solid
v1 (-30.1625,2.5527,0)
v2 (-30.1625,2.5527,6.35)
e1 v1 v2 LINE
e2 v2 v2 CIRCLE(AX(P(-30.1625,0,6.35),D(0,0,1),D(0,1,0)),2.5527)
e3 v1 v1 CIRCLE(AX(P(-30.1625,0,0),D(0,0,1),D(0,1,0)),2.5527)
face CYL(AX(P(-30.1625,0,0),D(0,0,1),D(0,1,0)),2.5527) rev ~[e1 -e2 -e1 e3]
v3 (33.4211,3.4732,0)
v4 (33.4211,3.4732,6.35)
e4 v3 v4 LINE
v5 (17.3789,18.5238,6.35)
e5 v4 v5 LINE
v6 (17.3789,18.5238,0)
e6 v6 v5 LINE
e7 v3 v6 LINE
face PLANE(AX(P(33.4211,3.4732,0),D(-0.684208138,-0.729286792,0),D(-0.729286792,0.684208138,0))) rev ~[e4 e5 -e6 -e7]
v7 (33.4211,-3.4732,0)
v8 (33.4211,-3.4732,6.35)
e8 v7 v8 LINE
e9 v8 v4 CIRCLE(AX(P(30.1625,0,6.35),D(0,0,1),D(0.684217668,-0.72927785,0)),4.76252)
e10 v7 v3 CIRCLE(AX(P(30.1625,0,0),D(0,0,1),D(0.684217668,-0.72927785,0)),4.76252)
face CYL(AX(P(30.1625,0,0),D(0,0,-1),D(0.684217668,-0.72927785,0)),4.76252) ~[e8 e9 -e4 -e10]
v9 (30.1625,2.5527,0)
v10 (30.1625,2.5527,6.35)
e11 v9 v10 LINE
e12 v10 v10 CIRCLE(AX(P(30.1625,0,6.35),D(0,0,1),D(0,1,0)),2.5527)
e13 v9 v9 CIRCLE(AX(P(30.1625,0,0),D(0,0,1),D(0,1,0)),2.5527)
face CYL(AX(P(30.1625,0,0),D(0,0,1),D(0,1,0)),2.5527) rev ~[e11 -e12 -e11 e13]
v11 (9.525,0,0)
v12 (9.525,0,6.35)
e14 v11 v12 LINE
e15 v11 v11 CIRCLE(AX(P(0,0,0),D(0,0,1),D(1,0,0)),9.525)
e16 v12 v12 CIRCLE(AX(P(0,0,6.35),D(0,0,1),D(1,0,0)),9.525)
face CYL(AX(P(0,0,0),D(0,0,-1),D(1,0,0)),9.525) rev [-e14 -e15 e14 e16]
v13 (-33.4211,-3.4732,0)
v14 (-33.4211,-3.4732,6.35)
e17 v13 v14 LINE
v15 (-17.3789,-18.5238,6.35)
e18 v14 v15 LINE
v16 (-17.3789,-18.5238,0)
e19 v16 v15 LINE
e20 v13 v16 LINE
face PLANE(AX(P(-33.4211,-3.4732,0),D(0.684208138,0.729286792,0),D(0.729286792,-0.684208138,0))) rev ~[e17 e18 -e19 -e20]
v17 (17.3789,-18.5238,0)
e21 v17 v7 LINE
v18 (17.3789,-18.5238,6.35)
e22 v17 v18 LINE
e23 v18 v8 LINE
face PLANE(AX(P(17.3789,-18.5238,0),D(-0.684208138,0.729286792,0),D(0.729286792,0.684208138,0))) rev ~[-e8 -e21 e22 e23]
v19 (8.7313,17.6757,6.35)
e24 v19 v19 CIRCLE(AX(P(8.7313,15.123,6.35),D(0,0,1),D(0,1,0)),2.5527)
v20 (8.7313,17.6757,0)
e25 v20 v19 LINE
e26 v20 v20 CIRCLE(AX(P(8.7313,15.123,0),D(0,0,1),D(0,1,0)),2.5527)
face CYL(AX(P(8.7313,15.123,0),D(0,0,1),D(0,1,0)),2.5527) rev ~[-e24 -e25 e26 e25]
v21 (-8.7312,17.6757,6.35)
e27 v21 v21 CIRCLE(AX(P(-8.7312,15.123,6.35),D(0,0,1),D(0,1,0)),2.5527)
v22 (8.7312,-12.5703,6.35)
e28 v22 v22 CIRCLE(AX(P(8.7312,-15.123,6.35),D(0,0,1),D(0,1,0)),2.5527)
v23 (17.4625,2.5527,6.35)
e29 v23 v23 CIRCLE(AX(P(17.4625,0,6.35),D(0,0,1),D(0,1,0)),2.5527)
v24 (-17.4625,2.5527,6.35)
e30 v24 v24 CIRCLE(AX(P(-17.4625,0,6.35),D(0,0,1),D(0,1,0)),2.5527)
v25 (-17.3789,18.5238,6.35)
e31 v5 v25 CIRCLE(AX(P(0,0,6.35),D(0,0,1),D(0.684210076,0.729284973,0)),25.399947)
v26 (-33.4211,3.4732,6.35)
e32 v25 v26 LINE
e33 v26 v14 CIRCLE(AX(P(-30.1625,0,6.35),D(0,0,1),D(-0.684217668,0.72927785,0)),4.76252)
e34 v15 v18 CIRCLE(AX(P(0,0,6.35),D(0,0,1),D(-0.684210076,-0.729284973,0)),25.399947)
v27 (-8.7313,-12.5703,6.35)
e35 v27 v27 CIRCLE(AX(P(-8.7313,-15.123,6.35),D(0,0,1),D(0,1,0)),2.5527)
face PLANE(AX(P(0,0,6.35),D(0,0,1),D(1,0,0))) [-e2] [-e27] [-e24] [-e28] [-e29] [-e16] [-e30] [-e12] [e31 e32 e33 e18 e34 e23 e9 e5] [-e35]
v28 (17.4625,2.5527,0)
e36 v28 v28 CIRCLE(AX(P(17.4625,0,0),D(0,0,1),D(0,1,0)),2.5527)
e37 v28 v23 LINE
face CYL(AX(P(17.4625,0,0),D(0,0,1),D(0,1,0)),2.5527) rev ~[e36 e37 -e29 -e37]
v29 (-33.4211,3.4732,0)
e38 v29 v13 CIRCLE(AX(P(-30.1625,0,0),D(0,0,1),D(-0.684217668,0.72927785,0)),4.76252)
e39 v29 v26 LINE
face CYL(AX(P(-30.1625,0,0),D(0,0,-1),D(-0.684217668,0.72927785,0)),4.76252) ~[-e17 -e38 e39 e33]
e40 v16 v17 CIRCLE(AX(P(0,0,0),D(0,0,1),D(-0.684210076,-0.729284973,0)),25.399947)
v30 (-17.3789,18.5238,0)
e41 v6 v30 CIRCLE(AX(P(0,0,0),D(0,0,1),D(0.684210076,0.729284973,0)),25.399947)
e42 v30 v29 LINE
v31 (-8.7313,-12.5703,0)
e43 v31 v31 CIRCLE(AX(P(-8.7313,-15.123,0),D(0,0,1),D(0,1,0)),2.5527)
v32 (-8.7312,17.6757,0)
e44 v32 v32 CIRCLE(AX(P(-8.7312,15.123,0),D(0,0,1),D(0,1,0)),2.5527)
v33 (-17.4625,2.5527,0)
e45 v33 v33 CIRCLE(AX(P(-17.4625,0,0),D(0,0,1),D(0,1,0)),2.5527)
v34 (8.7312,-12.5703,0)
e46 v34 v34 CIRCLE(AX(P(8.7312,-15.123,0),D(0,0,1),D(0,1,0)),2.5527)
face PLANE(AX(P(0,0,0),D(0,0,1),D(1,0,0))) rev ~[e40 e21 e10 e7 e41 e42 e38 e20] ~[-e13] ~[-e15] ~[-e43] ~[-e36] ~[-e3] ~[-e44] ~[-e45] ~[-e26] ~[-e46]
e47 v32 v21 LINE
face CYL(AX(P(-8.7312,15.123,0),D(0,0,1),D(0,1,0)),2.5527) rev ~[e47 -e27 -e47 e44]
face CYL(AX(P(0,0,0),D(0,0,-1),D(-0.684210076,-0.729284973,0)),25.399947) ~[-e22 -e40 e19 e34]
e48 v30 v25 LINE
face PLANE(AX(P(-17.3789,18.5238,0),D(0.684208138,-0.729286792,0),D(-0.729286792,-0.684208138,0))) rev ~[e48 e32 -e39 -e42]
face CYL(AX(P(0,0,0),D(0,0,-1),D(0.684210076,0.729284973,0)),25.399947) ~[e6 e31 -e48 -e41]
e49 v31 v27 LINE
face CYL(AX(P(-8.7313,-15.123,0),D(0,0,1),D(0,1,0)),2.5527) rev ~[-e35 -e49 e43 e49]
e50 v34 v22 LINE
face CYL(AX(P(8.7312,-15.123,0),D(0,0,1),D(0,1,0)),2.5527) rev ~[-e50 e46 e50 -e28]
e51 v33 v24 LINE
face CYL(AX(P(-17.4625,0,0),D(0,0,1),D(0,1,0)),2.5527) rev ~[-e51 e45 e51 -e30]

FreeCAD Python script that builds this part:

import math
import FreeCAD as App
import Part
import Sketcher
Q = App.Units.Quantity

doc = App.newDocument("Part")
params = doc.addObject("Spreadsheet::Sheet", "Params")
for row, (alias, value) in enumerate([
    ("sketch1_radius", "1 in"),
    ("sketch1_diameter", "0.75 in"),
    ("sketch1_radius2", "0.1875 in"),
    ("pad1_length", "0.25 in"),
    ("sketch2_diameter", "0.201 in"),
    ("hole_diameter", "0.201 in"),
], start=1):
    params.set(f"A{row}", alias)
    params.set(f"B{row}", "=" + value)
    params.setAlias(f"B{row}", alias)

body = doc.addObject("PartDesign::Body", "Body")

# Sketch on XY plane
sketch1 = body.newObject("Sketcher::SketchObject", "Sketch")
sketch1.AttachmentSupport = (doc.getObject("XY_Plane"), [""])
sketch1.MapMode = "FlatFace"
sketch1.addGeometry([
    Part.ArcOfCircle(Part.Circle(App.Vector(0, 0, 0), App.Vector(0, 0, 1), 25.399947), math.radians(46.826484), math.radians(133.173516)),  # 0
    Part.LineSegment(App.Vector(-17.3789, 18.5238, 0), App.Vector(-33.4211, 3.4732, 0)),  # 1
    Part.ArcOfCircle(Part.Circle(App.Vector(-30.1625, 0, 0), App.Vector(0, 0, 1), 4.76252), math.radians(133.174112), math.radians(226.825888)),  # 2
    Part.LineSegment(App.Vector(-33.4211, -3.4732, 0), App.Vector(-17.3789, -18.5238, 0)),  # 3
    Part.ArcOfCircle(Part.Circle(App.Vector(0, 0, 0), App.Vector(0, 0, 1), 25.399947), math.radians(-133.173516), math.radians(-46.826484)),  # 4
    Part.LineSegment(App.Vector(17.3789, -18.5238, 0), App.Vector(33.4211, -3.4732, 0)),  # 5
    Part.ArcOfCircle(Part.Circle(App.Vector(30.1625, 0, 0), App.Vector(0, 0, 1), 4.76252), math.radians(-46.825888), math.radians(46.825888)),  # 6
    Part.LineSegment(App.Vector(33.4211, 3.4732, 0), App.Vector(17.3789, 18.5238, 0)),  # 7
    Part.Circle(App.Vector(0, 0, 0), App.Vector(0, 0, 1), 9.525),  # 8
], False)
sketch1.addConstraint([
    Sketcher.Constraint("Tangent", 0, 2, 1, 1),
    Sketcher.Constraint("Tangent", 1, 2, 2, 1),
    Sketcher.Constraint("Tangent", 2, 2, 3, 1),
    Sketcher.Constraint("Tangent", 3, 2, 4, 1),
    Sketcher.Constraint("Tangent", 4, 2, 5, 1),
    Sketcher.Constraint("Tangent", 5, 2, 6, 1),
    Sketcher.Constraint("Tangent", 6, 2, 7, 1),
    Sketcher.Constraint("Tangent", 7, 2, 0, 1),
    Sketcher.Constraint("Coincident", 0, 3, -1, 1),
    Sketcher.Constraint("Coincident", 4, 3, -1, 1),
    Sketcher.Constraint("Coincident", 8, 3, -1, 1),
    Sketcher.Constraint("Equal", 0, 4),
    Sketcher.Constraint("Equal", 2, 6),
    Sketcher.Constraint("Symmetric", 2, 3, 6, 3, -1, 1),
    Sketcher.Constraint("PointOnObject", 2, 3, -1),
    Sketcher.Constraint("Radius", 0, Q("1 in")),
    Sketcher.Constraint("Diameter", 8, Q("0.75 in")),
    Sketcher.Constraint("Radius", 2, Q("0.1875 in")),
    Sketcher.Constraint("DistanceX", 2, 3, -1, 1, Q("1.1875 in")),
])
sketch1.setExpression("Constraints[15]", "Params.sketch1_radius")
sketch1.setExpression("Constraints[16]", "Params.sketch1_diameter")
sketch1.setExpression("Constraints[17]", "Params.sketch1_radius2")
pad1 = body.newObject("PartDesign::Pad", "Pad")
pad1.Profile = sketch1
pad1.setExpression("Length", "Params.pad1_length")

# Sketch on XY plane
sketch2 = body.newObject("Sketcher::SketchObject", "Sketch001")
sketch2.AttachmentSupport = (doc.getObject("XY_Plane"), [""])
sketch2.MapMode = "FlatFace"
sketch2.addGeometry([
    Part.Circle(App.Vector(-17.4625, 0, 0), App.Vector(0, 0, 1), 2.5527),  # 0
    Part.Circle(App.Vector(-8.7313, -15.123, 0), App.Vector(0, 0, 1), 2.5527),  # 1
    Part.Circle(App.Vector(8.7312, -15.123, 0), App.Vector(0, 0, 1), 2.5527),  # 2
    Part.Circle(App.Vector(17.4625, 0, 0), App.Vector(0, 0, 1), 2.5527),  # 3
    Part.Circle(App.Vector(8.7313, 15.123, 0), App.Vector(0, 0, 1), 2.5527),  # 4
    Part.Circle(App.Vector(-8.7312, 15.123, 0), App.Vector(0, 0, 1), 2.5527),  # 5
    Part.Circle(App.Vector(-30.1625, 0, 0), App.Vector(0, 0, 1), 2.5527),  # 6
    Part.Circle(App.Vector(30.1625, 0, 0), App.Vector(0, 0, 1), 2.5527),  # 7
], False)
sketch2.addConstraint([
    Sketcher.Constraint("Equal", 0, 1),
    Sketcher.Constraint("Equal", 1, 2),
    Sketcher.Constraint("Equal", 2, 3),
    Sketcher.Constraint("Equal", 3, 4),
    Sketcher.Constraint("Equal", 4, 5),
    Sketcher.Constraint("Equal", 5, 6),
    Sketcher.Constraint("Equal", 6, 7),
    Sketcher.Constraint("Symmetric", 0, 3, 3, 3, -1, 1),
    Sketcher.Constraint("Symmetric", 1, 3, 4, 3, -1, 1),
    Sketcher.Constraint("Symmetric", 2, 3, 5, 3, -1, 1),
    Sketcher.Constraint("Symmetric", 6, 3, 7, 3, -1, 1),
    Sketcher.Constraint("Symmetric", 1, 3, 2, 3, -2),
    Sketcher.Constraint("PointOnObject", 0, 3, -1),
    Sketcher.Constraint("PointOnObject", 6, 3, -1),
    Sketcher.Constraint("Diameter", 0, Q("0.201 in")),
    Sketcher.Constraint("DistanceX", 6, 3, 0, 3, Q("0.5 in")),
    Sketcher.Constraint("DistanceX", 0, 3, -1, 1, Q("0.6875 in")),
    Sketcher.Constraint("DistanceX", 1, 3, -1, 1, Q("0.343752 in")),
    Sketcher.Constraint("DistanceY", 1, 3, -1, 1, Q("0.5954 in")),
])
sketch2.setExpression("Constraints[14]", "Params.sketch2_diameter")
doc.recompute()
hole = body.newObject("PartDesign::Hole", "Hole")
hole.Profile = sketch2
hole.ThreadType = "None"
hole.setExpression("Diameter", "Params.hole_diameter")
hole.DepthType = "ThroughAll"
hole.Reversed = True

doc.recompute()
